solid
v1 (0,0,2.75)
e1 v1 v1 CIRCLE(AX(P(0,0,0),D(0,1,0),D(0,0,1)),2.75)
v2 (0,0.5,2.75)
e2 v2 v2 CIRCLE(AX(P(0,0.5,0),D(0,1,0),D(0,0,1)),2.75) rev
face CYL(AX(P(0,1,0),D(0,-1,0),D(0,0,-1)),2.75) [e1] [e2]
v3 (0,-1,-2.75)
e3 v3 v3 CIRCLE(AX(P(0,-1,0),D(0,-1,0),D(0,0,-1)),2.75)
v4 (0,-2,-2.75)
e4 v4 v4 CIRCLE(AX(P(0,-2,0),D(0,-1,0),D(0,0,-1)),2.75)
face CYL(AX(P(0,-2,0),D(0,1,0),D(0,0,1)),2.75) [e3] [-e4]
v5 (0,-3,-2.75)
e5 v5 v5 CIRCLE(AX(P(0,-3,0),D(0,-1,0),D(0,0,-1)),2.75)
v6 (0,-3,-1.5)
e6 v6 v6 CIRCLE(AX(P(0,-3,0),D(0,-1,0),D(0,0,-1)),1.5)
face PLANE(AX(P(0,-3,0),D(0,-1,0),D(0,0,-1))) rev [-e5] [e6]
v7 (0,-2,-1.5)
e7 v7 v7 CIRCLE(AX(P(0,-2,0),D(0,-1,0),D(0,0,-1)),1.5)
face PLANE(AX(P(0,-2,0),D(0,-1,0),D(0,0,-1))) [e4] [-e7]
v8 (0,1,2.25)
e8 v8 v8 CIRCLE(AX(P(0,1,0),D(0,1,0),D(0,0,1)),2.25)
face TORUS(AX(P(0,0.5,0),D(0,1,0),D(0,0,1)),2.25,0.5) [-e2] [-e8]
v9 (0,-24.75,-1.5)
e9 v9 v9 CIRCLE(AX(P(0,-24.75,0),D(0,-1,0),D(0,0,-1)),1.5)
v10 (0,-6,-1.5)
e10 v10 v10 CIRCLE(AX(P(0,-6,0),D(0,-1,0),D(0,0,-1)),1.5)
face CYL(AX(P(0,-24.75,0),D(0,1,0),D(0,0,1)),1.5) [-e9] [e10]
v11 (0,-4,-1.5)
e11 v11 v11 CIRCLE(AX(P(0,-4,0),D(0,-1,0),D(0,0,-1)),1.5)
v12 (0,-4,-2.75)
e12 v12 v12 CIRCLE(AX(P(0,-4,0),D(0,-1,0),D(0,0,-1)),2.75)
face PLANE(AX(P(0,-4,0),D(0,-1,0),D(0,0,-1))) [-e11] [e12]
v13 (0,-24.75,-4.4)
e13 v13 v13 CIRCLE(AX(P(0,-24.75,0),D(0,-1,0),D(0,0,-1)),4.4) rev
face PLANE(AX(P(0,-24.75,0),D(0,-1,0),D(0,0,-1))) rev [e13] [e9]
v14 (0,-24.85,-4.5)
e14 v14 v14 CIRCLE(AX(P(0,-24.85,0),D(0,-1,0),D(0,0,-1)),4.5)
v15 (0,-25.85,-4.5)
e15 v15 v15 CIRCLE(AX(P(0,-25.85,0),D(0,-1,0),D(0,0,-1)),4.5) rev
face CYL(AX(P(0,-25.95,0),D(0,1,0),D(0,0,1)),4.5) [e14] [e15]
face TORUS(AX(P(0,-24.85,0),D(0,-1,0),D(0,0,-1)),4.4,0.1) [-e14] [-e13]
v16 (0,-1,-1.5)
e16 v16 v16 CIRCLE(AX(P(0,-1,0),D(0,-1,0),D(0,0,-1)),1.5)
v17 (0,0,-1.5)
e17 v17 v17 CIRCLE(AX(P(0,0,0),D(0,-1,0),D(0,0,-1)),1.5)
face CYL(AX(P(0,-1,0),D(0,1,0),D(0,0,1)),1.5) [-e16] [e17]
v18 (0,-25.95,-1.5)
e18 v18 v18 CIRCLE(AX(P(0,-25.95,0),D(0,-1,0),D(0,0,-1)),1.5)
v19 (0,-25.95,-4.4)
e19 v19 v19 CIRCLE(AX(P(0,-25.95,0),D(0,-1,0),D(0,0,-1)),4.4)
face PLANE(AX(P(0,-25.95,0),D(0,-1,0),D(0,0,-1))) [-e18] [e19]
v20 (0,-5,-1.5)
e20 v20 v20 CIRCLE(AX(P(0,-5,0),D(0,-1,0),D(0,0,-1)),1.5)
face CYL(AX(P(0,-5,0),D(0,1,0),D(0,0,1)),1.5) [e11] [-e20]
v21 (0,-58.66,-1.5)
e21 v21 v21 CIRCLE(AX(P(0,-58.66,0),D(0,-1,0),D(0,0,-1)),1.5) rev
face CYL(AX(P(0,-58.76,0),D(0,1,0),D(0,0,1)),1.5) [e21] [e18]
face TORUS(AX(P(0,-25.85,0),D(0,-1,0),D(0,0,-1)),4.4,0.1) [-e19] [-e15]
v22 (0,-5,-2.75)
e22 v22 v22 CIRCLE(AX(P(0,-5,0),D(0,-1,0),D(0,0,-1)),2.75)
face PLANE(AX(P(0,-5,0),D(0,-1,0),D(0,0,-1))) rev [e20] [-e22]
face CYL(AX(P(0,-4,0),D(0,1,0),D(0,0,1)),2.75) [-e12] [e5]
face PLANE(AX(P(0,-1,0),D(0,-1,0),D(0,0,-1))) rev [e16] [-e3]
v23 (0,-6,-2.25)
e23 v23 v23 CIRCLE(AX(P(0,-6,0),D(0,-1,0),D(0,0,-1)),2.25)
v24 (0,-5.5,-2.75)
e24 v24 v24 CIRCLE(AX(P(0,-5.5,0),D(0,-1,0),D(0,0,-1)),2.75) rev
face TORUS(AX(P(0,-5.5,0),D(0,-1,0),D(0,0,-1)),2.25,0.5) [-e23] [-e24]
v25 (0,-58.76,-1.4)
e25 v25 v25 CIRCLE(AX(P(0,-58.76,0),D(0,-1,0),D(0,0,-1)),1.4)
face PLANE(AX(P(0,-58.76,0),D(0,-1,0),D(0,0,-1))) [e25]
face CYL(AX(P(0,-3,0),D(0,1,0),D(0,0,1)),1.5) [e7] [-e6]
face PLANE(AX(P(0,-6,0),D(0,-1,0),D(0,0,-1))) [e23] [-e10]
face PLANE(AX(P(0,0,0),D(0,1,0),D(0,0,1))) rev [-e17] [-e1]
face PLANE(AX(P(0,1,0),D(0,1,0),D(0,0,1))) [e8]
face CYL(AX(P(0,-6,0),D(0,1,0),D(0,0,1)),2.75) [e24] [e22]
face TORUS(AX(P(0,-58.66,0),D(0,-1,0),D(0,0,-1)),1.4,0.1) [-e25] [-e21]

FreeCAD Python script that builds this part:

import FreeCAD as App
import Part
import Sketcher
from FreeCAD import Vector


def edges_at(feature, points):
    """Names of the edges that pass closest to the given points."""
    edges = feature.Shape.Edges
    near = lambda p: min(range(len(edges)), key=lambda i: edges[i].distToShape(Part.Vertex(*p))[0])
    return sorted({f"Edge{near(p) + 1}" for p in points})

doc = App.newDocument("Part")
body = doc.addObject("PartDesign::Body", "Body")

# Sketch on XZ plane
sketch1 = doc.addObject("Sketcher::SketchObject", "Sketch")
body.addObject(sketch1)
sketch1.AttachmentSupport = (doc.XZ_Plane, [""])
sketch1.MapMode = "FlatFace"
sketch1.addGeometry(Part.Circle(Vector(0, 0, 0), Vector(0, 0, 1), 2.8), False)
sketch1.addConstraint([
    Sketcher.Constraint("Coincident", 0, 3, -1, 1),
    Sketcher.Constraint("Diameter", 0, 5.5),
])
pad1 = doc.addObject("PartDesign::Pad", "Pad")
body.addObject(pad1)
pad1.Profile = sketch1
pad1.Length = 1
pad1.Reversed = True

# Sketch on XZ plane
sketch2 = doc.addObject("Sketcher::SketchObject", "Sketch001")
body.addObject(sketch2)
sketch2.AttachmentSupport = (doc.XZ_Plane, [""])
sketch2.MapMode = "FlatFace"
sketch2.addGeometry(Part.Circle(Vector(0, 0, 0), Vector(0, 0, 1), 1.5), False)
sketch2.addConstraint([
    Sketcher.Constraint("Coincident", 0, 3, -1, 1),
    Sketcher.Constraint("Diameter", 0, 3.0),
])
pad2 = doc.addObject("PartDesign::Pad", "Pad001")
body.addObject(pad2)
pad2.Profile = sketch2
pad2.Length = 1

# Sketch on XZ plane
sketch3 = doc.addObject("Sketcher::SketchObject", "Sketch002")
body.addObject(sketch3)
sketch3.AttachmentSupport = (doc.XZ_Plane, [""])
sketch3.MapMode = "FlatFace"
sketch3.AttachmentOffset = App.Placement(Vector(0, 0, 2), App.Rotation())
sketch3.addGeometry(Part.Circle(Vector(0, 0, 0), Vector(0, 0, 1), 2.8), False)
sketch3.addConstraint([
    Sketcher.Constraint("Coincident", 0, 3, -1, 1),
    Sketcher.Constraint("Diameter", 0, 5.5),
])
pad3 = doc.addObject("PartDesign::Pad", "Pad002")
body.addObject(pad3)
pad3.Profile = sketch3
pad3.Length = 1
pad3.Reversed = True

# Sketch on XZ plane
sketch4 = doc.addObject("Sketcher::SketchObject", "Sketch003")
body.addObject(sketch4)
sketch4.AttachmentSupport = (doc.XZ_Plane, [""])
sketch4.MapMode = "FlatFace"
sketch4.AttachmentOffset = App.Placement(Vector(0, 0, 2), App.Rotation())
sketch4.addGeometry(Part.Circle(Vector(0, 0, 0), Vector(0, 0, 1), 1.5), False)
sketch4.addConstraint([
    Sketcher.Constraint("Coincident", 0, 3, -1, 1),
    Sketcher.Constraint("Diameter", 0, 3.0),
])
pad4 = doc.addObject("PartDesign::Pad", "Pad003")
body.addObject(pad4)
pad4.Profile = sketch4
pad4.Length = 1

# Sketch on XZ plane
sketch5 = doc.addObject("Sketcher::SketchObject", "Sketch004")
body.addObject(sketch5)
sketch5.AttachmentSupport = (doc.XZ_Plane, [""])
sketch5.MapMode = "FlatFace"
sketch5.AttachmentOffset = App.Placement(Vector(0, 0, 4), App.Rotation())
sketch5.addGeometry(Part.Circle(Vector(0, 0, 0), Vector(0, 0, 1), 2.8), False)
sketch5.addConstraint([
    Sketcher.Constraint("Coincident", 0, 3, -1, 1),
    Sketcher.Constraint("Diameter", 0, 5.5),
])
pad5 = doc.addObject("PartDesign::Pad", "Pad004")
body.addObject(pad5)
pad5.Profile = sketch5
pad5.Length = 1
pad5.Reversed = True

# Sketch on XZ plane
sketch6 = doc.addObject("Sketcher::SketchObject", "Sketch005")
body.addObject(sketch6)
sketch6.AttachmentSupport = (doc.XZ_Plane, [""])
sketch6.MapMode = "FlatFace"
sketch6.AttachmentOffset = App.Placement(Vector(0, 0, 4), App.Rotation())
sketch6.addGeometry(Part.Circle(Vector(0, 0, 0), Vector(0, 0, 1), 1.5), False)
sketch6.addConstraint([
    Sketcher.Constraint("Coincident", 0, 3, -1, 1),
    Sketcher.Constraint("Diameter", 0, 3.0),
])
pad6 = doc.addObject("PartDesign::Pad", "Pad005")
body.addObject(pad6)
pad6.Profile = sketch6
pad6.Length = 1

# Sketch on XZ plane
sketch7 = doc.addObject("Sketcher::SketchObject", "Sketch006")
body.addObject(sketch7)
sketch7.AttachmentSupport = (doc.XZ_Plane, [""])
sketch7.MapMode = "FlatFace"
sketch7.AttachmentOffset = App.Placement(Vector(0, 0, 6), App.Rotation())
sketch7.addGeometry(Part.Circle(Vector(0, 0, 0), Vector(0, 0, 1), 2.8), False)
sketch7.addConstraint([
    Sketcher.Constraint("Coincident", 0, 3, -1, 1),
    Sketcher.Constraint("Diameter", 0, 5.5),
])
pad7 = doc.addObject("PartDesign::Pad", "Pad006")
body.addObject(pad7)
pad7.Profile = sketch7
pad7.Length = 1
pad7.Reversed = True

# Sketch on XZ plane
sketch8 = doc.addObject("Sketcher::SketchObject", "Sketch007")
body.addObject(sketch8)
sketch8.AttachmentSupport = (doc.XZ_Plane, [""])
sketch8.MapMode = "FlatFace"
sketch8.AttachmentOffset = App.Placement(Vector(0, 0, 6), App.Rotation())
sketch8.addGeometry(Part.Circle(Vector(0, 0, 0), Vector(0, 0, 1), 1.5), False)
sketch8.addConstraint([
    Sketcher.Constraint("Coincident", 0, 3, -1, 1),
    Sketcher.Constraint("Diameter", 0, 3.0),
])
pad8 = doc.addObject("PartDesign::Pad", "Pad007")
body.addObject(pad8)
pad8.Profile = sketch8
pad8.Length = 18.75

# Sketch on XZ plane
sketch9 = doc.addObject("Sketcher::SketchObject", "Sketch008")
body.addObject(sketch9)
sketch9.AttachmentSupport = (doc.XZ_Plane, [""])
sketch9.MapMode = "FlatFace"
sketch9.AttachmentOffset = App.Placement(Vector(0, 0, 24.75), App.Rotation())
sketch9.addGeometry(Part.Circle(Vector(0, 0, 0), Vector(0, 0, 1), 4.5), False)
sketch9.addConstraint([
    Sketcher.Constraint("Coincident", 0, 3, -1, 1),
    Sketcher.Constraint("Diameter", 0, 9.0),
])
pad9 = doc.addObject("PartDesign::Pad", "Pad008")
body.addObject(pad9)
pad9.Profile = sketch9
pad9.Length = 1.2

# Sketch on XZ plane
sketch10 = doc.addObject("Sketcher::SketchObject", "Sketch009")
body.addObject(sketch10)
sketch10.AttachmentSupport = (doc.XZ_Plane, [""])
sketch10.MapMode = "FlatFace"
sketch10.AttachmentOffset = App.Placement(Vector(0, 0, 25.95), App.Rotation())
sketch10.addGeometry(Part.Circle(Vector(0, 0, 0), Vector(0, 0, 1), 1.5), False)
sketch10.addConstraint([
    Sketcher.Constraint("Coincident", 0, 3, -1, 1),
    Sketcher.Constraint("Diameter", 0, 3.0),
])
pad10 = doc.addObject("PartDesign::Pad", "Pad009")
body.addObject(pad10)
pad10.Profile = sketch10
pad10.Length = 32.81
doc.recompute()

fillet = doc.addObject("PartDesign::Fillet", "Fillet")
body.addObject(fillet)
fillet.Base = (pad10, edges_at(pad10, [(0, 1, -2.75)]))
fillet.Radius = 0.5
doc.recompute()

fillet2 = doc.addObject("PartDesign::Fillet", "Fillet001")
body.addObject(fillet2)
fillet2.Base = (fillet, edges_at(fillet, [(0, -24.75, 4.5), (0, -25.95, 4.5)]))
fillet2.Radius = 0.1
doc.recompute()

fillet3 = doc.addObject("PartDesign::Fillet", "Fillet002")
body.addObject(fillet3)
fillet3.Base = (fillet2, edges_at(fillet2, [(0, -6, -2.75)]))
fillet3.Radius = 0.5
doc.recompute()

fillet4 = doc.addObject("PartDesign::Fillet", "Fillet003")
body.addObject(fillet4)
fillet4.Base = (fillet3, edges_at(fillet3, [(0, -58.76, 1.5)]))
fillet4.Radius = 0.1

doc.recompute()
